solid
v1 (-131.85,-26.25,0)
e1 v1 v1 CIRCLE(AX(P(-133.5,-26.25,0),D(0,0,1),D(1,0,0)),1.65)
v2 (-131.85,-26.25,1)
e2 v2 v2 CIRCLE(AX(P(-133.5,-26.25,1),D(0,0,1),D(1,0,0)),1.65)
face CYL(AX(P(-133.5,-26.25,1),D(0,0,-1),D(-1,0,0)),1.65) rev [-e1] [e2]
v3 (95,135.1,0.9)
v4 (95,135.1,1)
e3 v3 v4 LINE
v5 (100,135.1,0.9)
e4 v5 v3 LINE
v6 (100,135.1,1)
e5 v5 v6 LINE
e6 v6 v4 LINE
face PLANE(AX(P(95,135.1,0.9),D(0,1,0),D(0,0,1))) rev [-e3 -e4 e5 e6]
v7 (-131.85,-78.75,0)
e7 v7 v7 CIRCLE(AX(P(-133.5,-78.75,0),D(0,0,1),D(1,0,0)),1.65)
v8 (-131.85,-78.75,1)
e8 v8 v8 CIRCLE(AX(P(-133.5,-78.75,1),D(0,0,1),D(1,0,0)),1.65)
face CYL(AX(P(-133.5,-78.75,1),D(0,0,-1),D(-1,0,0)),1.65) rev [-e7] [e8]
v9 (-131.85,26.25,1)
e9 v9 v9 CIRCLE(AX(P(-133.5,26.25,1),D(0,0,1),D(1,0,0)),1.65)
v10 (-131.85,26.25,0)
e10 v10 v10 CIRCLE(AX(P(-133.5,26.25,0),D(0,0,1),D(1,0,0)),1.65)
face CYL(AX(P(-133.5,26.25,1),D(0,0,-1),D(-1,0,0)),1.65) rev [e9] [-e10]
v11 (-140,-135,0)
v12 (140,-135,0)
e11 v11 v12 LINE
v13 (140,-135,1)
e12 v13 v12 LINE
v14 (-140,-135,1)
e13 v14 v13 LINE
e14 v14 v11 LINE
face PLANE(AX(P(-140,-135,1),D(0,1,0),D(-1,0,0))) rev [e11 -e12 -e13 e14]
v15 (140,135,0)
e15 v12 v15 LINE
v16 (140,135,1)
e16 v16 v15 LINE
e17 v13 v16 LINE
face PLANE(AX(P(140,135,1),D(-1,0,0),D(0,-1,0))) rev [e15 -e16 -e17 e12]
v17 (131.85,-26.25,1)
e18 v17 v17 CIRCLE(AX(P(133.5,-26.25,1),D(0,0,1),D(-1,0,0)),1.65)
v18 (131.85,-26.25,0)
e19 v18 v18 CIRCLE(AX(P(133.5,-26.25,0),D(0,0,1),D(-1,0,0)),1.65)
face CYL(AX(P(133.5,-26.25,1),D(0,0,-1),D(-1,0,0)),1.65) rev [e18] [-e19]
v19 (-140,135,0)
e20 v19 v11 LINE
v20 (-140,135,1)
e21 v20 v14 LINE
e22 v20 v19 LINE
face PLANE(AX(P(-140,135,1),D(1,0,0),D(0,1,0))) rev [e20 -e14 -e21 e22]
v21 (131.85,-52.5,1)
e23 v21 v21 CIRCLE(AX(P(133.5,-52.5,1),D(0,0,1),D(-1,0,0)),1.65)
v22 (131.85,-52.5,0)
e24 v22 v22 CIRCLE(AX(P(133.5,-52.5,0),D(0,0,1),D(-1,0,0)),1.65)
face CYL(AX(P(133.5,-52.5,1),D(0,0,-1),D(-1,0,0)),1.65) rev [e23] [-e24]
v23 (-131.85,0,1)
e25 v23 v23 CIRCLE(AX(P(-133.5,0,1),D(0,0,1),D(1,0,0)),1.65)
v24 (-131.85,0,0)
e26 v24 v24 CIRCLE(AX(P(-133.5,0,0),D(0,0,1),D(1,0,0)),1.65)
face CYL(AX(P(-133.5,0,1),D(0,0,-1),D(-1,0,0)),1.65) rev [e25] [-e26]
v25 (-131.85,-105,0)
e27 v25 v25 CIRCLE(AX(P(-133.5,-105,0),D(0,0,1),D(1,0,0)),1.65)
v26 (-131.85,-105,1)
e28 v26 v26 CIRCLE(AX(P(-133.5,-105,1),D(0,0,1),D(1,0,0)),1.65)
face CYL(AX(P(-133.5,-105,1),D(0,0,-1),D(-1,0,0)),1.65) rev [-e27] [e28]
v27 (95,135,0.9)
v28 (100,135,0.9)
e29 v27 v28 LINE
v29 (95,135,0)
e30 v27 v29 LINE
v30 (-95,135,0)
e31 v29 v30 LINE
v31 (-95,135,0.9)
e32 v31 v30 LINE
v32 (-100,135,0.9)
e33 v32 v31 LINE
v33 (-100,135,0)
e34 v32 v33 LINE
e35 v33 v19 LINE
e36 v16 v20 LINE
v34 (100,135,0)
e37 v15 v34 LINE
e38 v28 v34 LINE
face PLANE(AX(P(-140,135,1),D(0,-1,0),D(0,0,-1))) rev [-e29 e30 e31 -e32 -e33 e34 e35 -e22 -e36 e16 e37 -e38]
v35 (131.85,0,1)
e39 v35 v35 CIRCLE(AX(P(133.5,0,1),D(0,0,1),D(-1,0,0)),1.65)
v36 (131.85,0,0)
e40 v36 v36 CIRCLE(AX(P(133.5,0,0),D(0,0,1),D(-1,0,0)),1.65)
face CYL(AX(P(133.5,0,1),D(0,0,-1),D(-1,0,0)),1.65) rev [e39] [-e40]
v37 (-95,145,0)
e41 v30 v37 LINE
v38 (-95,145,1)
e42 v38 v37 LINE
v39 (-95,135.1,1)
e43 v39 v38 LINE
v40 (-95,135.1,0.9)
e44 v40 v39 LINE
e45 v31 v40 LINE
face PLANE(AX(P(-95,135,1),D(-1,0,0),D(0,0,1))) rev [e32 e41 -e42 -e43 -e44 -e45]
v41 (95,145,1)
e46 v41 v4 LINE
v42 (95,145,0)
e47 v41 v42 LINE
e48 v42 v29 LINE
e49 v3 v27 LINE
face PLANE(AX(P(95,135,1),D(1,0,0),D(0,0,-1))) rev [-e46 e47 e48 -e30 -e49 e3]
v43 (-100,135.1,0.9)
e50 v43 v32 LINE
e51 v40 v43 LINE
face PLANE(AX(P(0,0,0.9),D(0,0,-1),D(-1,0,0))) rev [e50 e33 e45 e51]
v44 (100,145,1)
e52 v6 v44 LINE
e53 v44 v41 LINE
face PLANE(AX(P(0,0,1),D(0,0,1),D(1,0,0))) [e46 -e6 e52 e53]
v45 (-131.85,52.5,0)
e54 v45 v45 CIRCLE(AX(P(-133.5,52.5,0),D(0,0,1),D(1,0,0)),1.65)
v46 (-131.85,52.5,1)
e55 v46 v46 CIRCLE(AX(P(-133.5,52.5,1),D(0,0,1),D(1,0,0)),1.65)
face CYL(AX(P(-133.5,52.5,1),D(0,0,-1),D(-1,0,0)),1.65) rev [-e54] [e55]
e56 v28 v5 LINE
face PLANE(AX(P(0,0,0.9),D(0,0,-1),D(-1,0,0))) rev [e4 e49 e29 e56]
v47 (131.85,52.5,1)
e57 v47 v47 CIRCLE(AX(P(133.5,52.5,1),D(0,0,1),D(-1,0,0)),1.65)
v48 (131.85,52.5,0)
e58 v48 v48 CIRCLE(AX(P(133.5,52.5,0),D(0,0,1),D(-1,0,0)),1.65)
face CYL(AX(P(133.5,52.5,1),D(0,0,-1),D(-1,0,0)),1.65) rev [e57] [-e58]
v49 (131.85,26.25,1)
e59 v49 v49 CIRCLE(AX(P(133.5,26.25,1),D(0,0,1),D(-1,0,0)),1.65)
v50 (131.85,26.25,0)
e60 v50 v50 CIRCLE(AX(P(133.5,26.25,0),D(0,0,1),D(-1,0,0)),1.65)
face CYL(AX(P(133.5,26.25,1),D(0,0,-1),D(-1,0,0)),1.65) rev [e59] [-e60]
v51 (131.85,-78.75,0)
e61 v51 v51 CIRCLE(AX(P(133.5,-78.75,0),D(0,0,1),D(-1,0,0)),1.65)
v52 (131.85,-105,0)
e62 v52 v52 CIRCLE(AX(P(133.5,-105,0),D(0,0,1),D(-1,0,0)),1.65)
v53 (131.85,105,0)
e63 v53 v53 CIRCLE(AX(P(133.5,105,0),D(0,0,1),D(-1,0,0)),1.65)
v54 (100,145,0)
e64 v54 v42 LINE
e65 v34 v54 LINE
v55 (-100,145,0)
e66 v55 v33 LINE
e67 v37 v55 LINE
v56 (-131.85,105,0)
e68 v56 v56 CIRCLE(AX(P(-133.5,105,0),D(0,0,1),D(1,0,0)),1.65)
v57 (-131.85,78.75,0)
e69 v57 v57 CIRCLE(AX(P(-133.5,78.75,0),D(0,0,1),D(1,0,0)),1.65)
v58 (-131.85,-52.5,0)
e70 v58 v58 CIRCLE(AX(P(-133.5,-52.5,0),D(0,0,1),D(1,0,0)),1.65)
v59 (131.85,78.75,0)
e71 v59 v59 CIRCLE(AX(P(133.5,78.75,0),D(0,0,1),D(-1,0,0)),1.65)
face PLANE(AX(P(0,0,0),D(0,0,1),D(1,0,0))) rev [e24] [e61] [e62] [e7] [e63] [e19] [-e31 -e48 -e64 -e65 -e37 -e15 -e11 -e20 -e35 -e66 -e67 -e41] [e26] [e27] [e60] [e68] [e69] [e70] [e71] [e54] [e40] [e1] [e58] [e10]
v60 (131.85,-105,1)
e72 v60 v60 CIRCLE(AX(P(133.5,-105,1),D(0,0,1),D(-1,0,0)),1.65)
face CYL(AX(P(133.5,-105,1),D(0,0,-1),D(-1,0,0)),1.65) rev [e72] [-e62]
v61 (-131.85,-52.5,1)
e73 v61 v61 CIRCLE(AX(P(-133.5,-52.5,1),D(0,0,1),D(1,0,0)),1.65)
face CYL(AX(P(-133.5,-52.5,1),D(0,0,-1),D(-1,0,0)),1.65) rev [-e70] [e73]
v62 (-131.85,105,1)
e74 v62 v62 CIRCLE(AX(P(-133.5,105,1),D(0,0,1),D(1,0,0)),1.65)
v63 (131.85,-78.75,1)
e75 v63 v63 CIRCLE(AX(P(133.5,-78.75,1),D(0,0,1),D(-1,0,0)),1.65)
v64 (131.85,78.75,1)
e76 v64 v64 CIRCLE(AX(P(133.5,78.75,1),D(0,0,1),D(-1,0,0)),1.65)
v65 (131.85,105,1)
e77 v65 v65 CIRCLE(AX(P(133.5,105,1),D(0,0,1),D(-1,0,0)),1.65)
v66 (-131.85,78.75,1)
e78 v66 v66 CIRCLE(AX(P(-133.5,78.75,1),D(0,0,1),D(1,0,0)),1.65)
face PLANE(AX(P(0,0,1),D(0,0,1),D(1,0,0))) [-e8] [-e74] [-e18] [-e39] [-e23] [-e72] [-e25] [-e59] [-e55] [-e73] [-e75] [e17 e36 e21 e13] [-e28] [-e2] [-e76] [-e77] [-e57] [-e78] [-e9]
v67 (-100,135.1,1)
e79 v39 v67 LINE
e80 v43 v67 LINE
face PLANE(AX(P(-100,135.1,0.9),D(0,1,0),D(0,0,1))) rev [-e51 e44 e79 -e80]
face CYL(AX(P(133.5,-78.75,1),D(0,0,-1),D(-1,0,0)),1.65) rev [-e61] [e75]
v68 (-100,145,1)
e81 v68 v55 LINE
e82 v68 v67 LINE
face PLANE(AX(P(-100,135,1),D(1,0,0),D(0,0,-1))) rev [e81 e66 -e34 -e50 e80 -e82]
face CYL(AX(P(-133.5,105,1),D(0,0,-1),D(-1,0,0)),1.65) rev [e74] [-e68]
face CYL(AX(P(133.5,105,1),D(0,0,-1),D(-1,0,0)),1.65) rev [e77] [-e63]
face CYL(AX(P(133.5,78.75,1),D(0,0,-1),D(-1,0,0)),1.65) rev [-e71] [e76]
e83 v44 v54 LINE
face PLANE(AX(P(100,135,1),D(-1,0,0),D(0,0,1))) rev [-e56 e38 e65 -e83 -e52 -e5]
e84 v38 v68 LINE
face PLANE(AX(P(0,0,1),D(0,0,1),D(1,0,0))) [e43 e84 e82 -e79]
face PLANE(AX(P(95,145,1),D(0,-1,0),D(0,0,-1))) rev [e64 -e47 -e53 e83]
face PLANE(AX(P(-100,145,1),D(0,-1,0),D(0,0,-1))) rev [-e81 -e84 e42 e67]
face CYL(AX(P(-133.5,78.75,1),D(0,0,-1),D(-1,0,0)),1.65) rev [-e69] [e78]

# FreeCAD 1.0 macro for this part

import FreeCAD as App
import Part
import Sketcher
Q = App.Units.Quantity


def add_polygon(sketch, points):
    """Adds a closed chain of lines whose ends are joined by coincident constraints."""
    first, n = sketch.GeometryCount, len(points)
    for a, b in zip(points, points[1:] + points[:1]):
        sketch.addGeometry(Part.LineSegment(App.Vector(*a, 0), App.Vector(*b, 0)), False)
    for i in range(n):
        sketch.addConstraint(Sketcher.Constraint("Coincident", first + i, 2, first + (i + 1) % n, 1))

doc = App.newDocument("Part")
params = doc.addObject("Spreadsheet::Sheet", "Params")
for row, (alias, value) in enumerate([
    ("sketch1_diameter", "3.3 mm"),
    ("sketch1_width", "40 mm"),
    ("sketch1_width2", "280 mm"),
    ("sketch1_width3", "5 mm"),
    ("sketch1_height", "270 mm"),
    ("pad1_length", "1 mm"),
    ("sketch2_width", "5 mm"),
    ("sketch2_height", "0.1 mm"),
    ("pocket1_length", "0.1 mm"),
], start=1):
    params.set(f"A{row}", alias)
    params.set(f"B{row}", "=" + value)
    params.setAlias(f"B{row}", alias)

body = doc.addObject("PartDesign::Body", "Body")

sketch1 = body.newObject("Sketcher::SketchObject", "Sketch")
sketch1.AttachmentSupport = (doc.getObject("XY_Plane"), [""])
sketch1.MapMode = "FlatFace"
add_polygon(sketch1, [(-100, 135), (-140, 135), (-140, -135), (140, -135), (140, 135), (100, 135), (100, 145), (95, 145), (95, 135), (-95, 135), (-95, 145), (-100, 145)])
sketch1.addGeometry(Part.Circle(App.Vector(133.5, -105, 0), App.Vector(0, 0, 1), 1.6), False)
sketch1.addGeometry(Part.Circle(App.Vector(133.5, -78.8, 0), App.Vector(0, 0, 1), 1.6), False)
sketch1.addGeometry(Part.Circle(App.Vector(133.5, -52.5, 0), App.Vector(0, 0, 1), 1.6), False)
sketch1.addGeometry(Part.Circle(App.Vector(133.5, -26.2, 0), App.Vector(0, 0, 1), 1.6), False)
sketch1.addGeometry(Part.Circle(App.Vector(-133.5, -105, 0), App.Vector(0, 0, 1), 1.6), False)
sketch1.addGeometry(Part.Circle(App.Vector(-133.5, -78.8, 0), App.Vector(0, 0, 1), 1.6), False)
sketch1.addGeometry(Part.Circle(App.Vector(-133.5, -52.5, 0), App.Vector(0, 0, 1), 1.6), False)
sketch1.addGeometry(Part.Circle(App.Vector(-133.5, -26.2, 0), App.Vector(0, 0, 1), 1.6), False)
sketch1.addGeometry(Part.Circle(App.Vector(133.5, 0, 0), App.Vector(0, 0, 1), 1.6), False)
sketch1.addGeometry(Part.Circle(App.Vector(133.5, 26.2, 0), App.Vector(0, 0, 1), 1.6), False)
sketch1.addGeometry(Part.Circle(App.Vector(133.5, 52.5, 0), App.Vector(0, 0, 1), 1.6), False)
sketch1.addGeometry(Part.Circle(App.Vector(133.5, 78.8, 0), App.Vector(0, 0, 1), 1.6), False)
sketch1.addGeometry(Part.Circle(App.Vector(133.5, 105, 0), App.Vector(0, 0, 1), 1.6), False)
sketch1.addGeometry(Part.Circle(App.Vector(-133.5, 0, 0), App.Vector(0, 0, 1), 1.6), False)
sketch1.addGeometry(Part.Circle(App.Vector(-133.5, 26.2, 0), App.Vector(0, 0, 1), 1.6), False)
sketch1.addGeometry(Part.Circle(App.Vector(-133.5, 52.5, 0), App.Vector(0, 0, 1), 1.6), False)
sketch1.addGeometry(Part.Circle(App.Vector(-133.5, 78.8, 0), App.Vector(0, 0, 1), 1.6), False)
sketch1.addGeometry(Part.Circle(App.Vector(-133.5, 105, 0), App.Vector(0, 0, 1), 1.6), False)
sketch1.addConstraint([
    Sketcher.Constraint("Horizontal", 0),
    Sketcher.Constraint("Vertical", 1),
    Sketcher.Constraint("Horizontal", 2),
    Sketcher.Constraint("Vertical", 3),
    Sketcher.Constraint("Horizontal", 4),
    Sketcher.Constraint("Vertical", 5),
    Sketcher.Constraint("Horizontal", 6),
    Sketcher.Constraint("Vertical", 7),
    Sketcher.Constraint("Horizontal", 8),
    Sketcher.Constraint("Vertical", 9),
    Sketcher.Constraint("Horizontal", 10),
    Sketcher.Constraint("Vertical", 11),
    Sketcher.Constraint("Equal", 12, 13),
    Sketcher.Constraint("Equal", 13, 14),
    Sketcher.Constraint("Equal", 14, 15),
    Sketcher.Constraint("Equal", 15, 16),
    Sketcher.Constraint("Equal", 16, 17),
    Sketcher.Constraint("Equal", 17, 18),
    Sketcher.Constraint("Equal", 18, 19),
    Sketcher.Constraint("Equal", 19, 20),
    Sketcher.Constraint("Equal", 20, 21),
    Sketcher.Constraint("Equal", 21, 22),
    Sketcher.Constraint("Equal", 22, 23),
    Sketcher.Constraint("Equal", 23, 24),
    Sketcher.Constraint("Equal", 24, 25),
    Sketcher.Constraint("Equal", 25, 26),
    Sketcher.Constraint("Equal", 26, 27),
    Sketcher.Constraint("Equal", 27, 28),
    Sketcher.Constraint("Equal", 28, 29),
    Sketcher.Constraint("Symmetric", 19, 3, 21, 3, -1, 1),
    Sketcher.Constraint("Symmetric", 18, 3, 22, 3, -1, 1),
    Sketcher.Constraint("Symmetric", 17, 3, 23, 3, -1, 1),
    Sketcher.Constraint("Symmetric", 16, 3, 24, 3, -1, 1),
    Sketcher.Constraint("Symmetric", 20, 3, 25, 3, -1, 1),
    Sketcher.Constraint("Symmetric", 15, 3, 26, 3, -1, 1),
    Sketcher.Constraint("Symmetric", 14, 3, 27, 3, -1, 1),
    Sketcher.Constraint("Symmetric", 13, 3, 28, 3, -1, 1),
    Sketcher.Constraint("Symmetric", 12, 3, 29, 3, -1, 1),
    Sketcher.Constraint("Symmetric", 0, 2, 2, 2, -1, 1),
    Sketcher.Constraint("Symmetric", 12, 3, 16, 3, -2),
    Sketcher.Constraint("Symmetric", 13, 3, 17, 3, -2),
    Sketcher.Constraint("Symmetric", 14, 3, 18, 3, -2),
    Sketcher.Constraint("Symmetric", 15, 3, 19, 3, -2),
    Sketcher.Constraint("Symmetric", 6, 2, 9, 2, -2),
    Sketcher.Constraint("Symmetric", 4, 2, 11, 2, -2),
    Sketcher.Constraint("PointOnObject", 20, 3, -1),
    Sketcher.Constraint("Horizontal", 4, 2, 7, 2),
    Sketcher.Constraint("Vertical", 12, 3, 13, 3),
    Sketcher.Constraint("Vertical", 13, 3, 14, 3),
    Sketcher.Constraint("Vertical", 14, 3, 15, 3),
    Sketcher.Constraint("Vertical", 15, 3, 20, 3),
    Sketcher.Constraint("Diameter", 12, Q("3.3 mm")),
    Sketcher.Constraint("DistanceX", 0, 2, 0, 1, Q("40 mm")),
    Sketcher.Constraint("DistanceX", 2, 1, 2, 2, Q("280 mm")),
    Sketcher.Constraint("DistanceX", 6, 2, 6, 1, Q("5 mm")),
    Sketcher.Constraint("DistanceY", 1, 2, 1, 1, Q("270 mm")),
    Sketcher.Constraint("DistanceY", 5, 1, 5, 2, Q("10 mm")),
    Sketcher.Constraint("DistanceY", 12, 3, -1, 1, Q("105 mm")),
    Sketcher.Constraint("DistanceX", 16, 3, 12, 3, Q("267 mm")),
    Sketcher.Constraint("DistanceY", 13, 3, 21, 3, Q("105 mm")),
    Sketcher.Constraint("DistanceY", 14, 3, 22, 3, Q("105 mm")),
    Sketcher.Constraint("DistanceY", 13, 3, 15, 3, Q("52.5 mm")),
])
sketch1.setExpression("Constraints[63]", "Params.sketch1_diameter")
sketch1.setExpression("Constraints[64]", "Params.sketch1_width")
sketch1.setExpression("Constraints[65]", "Params.sketch1_width2")
sketch1.setExpression("Constraints[66]", "Params.sketch1_width3")
sketch1.setExpression("Constraints[67]", "Params.sketch1_height")
pad1 = body.newObject("PartDesign::Pad", "Pad")
pad1.Profile = sketch1
pad1.setExpression("Length", "Params.pad1_length")

sketch2 = body.newObject("Sketcher::SketchObject", "Sketch001")
sketch2.AttachmentSupport = (doc.getObject("XY_Plane"), [""])
sketch2.MapMode = "FlatFace"
sketch2.AttachmentOffset = App.Placement(App.Vector(0, 0, 1), App.Rotation())
add_polygon(sketch2, [(-100, 135.1), (-100, 135), (-95, 135), (-95, 135.1)])
add_polygon(sketch2, [(95, 135.1), (95, 135), (100, 135), (100, 135.1)])
sketch2.addConstraint([
    Sketcher.Constraint("Vertical", 0),
    Sketcher.Constraint("Horizontal", 1),
    Sketcher.Constraint("Vertical", 2),
    Sketcher.Constraint("Horizontal", 3),
    Sketcher.Constraint("Vertical", 4),
    Sketcher.Constraint("Horizontal", 5),
    Sketcher.Constraint("Vertical", 6),
    Sketcher.Constraint("Horizontal", 7),
    Sketcher.Constraint("Symmetric", 1, 2, 4, 2, -2),
    Sketcher.Constraint("Symmetric", 3, 2, 6, 2, -2),
    Sketcher.Constraint("DistanceX", 1, 1, 1, 2, Q("5 mm")),
    Sketcher.Constraint("DistanceY", 0, 2, 0, 1, Q("0.1 mm")),
    Sketcher.Constraint("DistanceX", 0, 2, -1, 1, Q("100 mm")),
    Sketcher.Constraint("DistanceY", -1, 1, 0, 2, Q("135 mm")),
])
sketch2.setExpression("Constraints[18]", "Params.sketch2_width")
sketch2.setExpression("Constraints[19]", "Params.sketch2_height")
pocket1 = body.newObject("PartDesign::Pocket", "Pocket")
pocket1.Profile = sketch2
pocket1.setExpression("Length", "Params.pocket1_length")

doc.recompute()
